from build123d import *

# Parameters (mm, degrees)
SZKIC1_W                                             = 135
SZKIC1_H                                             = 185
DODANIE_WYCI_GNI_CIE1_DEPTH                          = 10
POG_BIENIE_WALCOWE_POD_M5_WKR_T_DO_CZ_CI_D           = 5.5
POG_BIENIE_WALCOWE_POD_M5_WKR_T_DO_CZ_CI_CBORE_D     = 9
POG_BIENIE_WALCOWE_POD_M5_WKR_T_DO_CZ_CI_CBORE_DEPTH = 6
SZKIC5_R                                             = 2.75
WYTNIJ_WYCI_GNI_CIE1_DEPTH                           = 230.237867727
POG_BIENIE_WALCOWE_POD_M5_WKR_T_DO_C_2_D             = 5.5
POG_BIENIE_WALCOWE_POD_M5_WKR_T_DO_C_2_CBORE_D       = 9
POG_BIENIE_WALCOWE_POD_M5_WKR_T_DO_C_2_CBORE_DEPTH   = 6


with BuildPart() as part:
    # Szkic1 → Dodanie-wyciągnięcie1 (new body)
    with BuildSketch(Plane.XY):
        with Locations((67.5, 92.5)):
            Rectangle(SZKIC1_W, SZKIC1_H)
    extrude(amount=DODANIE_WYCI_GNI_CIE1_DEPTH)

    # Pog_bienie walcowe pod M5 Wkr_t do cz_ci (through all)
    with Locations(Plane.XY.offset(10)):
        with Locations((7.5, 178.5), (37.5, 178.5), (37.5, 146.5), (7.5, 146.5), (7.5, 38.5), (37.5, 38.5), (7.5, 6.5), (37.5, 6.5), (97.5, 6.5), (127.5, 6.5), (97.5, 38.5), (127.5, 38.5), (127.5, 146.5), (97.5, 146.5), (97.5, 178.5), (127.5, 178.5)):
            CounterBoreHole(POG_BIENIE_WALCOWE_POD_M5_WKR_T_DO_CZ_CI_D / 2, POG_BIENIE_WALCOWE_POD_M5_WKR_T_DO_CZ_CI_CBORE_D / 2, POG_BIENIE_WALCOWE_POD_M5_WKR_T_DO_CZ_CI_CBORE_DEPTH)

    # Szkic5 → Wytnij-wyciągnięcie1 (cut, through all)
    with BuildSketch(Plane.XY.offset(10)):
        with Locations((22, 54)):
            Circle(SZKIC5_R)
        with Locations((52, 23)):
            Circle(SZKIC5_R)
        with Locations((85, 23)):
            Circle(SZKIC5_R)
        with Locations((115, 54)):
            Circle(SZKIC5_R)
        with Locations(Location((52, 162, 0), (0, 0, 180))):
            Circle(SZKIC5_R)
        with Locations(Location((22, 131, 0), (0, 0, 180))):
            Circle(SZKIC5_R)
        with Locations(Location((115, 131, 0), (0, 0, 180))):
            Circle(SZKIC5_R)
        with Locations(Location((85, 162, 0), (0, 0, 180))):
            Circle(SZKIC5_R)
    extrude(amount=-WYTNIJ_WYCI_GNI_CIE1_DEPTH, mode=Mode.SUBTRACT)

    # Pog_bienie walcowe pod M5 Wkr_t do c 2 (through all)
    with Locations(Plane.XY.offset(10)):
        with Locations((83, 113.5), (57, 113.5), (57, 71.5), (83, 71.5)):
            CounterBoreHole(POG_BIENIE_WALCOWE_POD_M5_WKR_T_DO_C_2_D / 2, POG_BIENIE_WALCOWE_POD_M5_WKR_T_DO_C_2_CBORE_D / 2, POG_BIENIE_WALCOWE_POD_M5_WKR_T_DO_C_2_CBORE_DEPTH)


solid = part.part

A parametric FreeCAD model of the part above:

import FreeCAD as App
import Part
import Sketcher

doc = App.newDocument("Part")
body = doc.addObject("PartDesign::Body", "Body")

# Sketch on XY plane
sketch1 = body.newObject("Sketcher::SketchObject", "Sketch")
sketch1.AttachmentSupport = (doc.getObject("XY_Plane"), [""])
sketch1.MapMode = "FlatFace"
sketch1.addGeometry([
    Part.LineSegment(App.Vector(0, 185, 0), App.Vector(0, 0, 0)),
    Part.LineSegment(App.Vector(0, 0, 0), App.Vector(135, 0, 0)),
    Part.LineSegment(App.Vector(135, 0, 0), App.Vector(135, 185, 0)),
    Part.LineSegment(App.Vector(135, 185, 0), App.Vector(0, 185, 0)),
], False)
sketch1.addConstraint([
    Sketcher.Constraint("Coincident", 0, 2, 1, 1),
    Sketcher.Constraint("Coincident", 1, 2, 2, 1),
    Sketcher.Constraint("Coincident", 2, 2, 3, 1),
    Sketcher.Constraint("Coincident", 3, 2, 0, 1),
    Sketcher.Constraint("Vertical", 0),
    Sketcher.Constraint("Horizontal", 1),
    Sketcher.Constraint("Vertical", 2),
    Sketcher.Constraint("Horizontal", 3),
    Sketcher.Constraint("Coincident", 0, 2, -1, 1),
    Sketcher.Constraint("DistanceX", 1, 1, 1, 2, 135.0),
    Sketcher.Constraint("DistanceY", 0, 2, 0, 1, 185.0),
])
pad1 = body.newObject("PartDesign::Pad", "Pad")
pad1.Profile = sketch1
pad1.Length = 10

# Sketch on XY plane
sketch2 = body.newObject("Sketcher::SketchObject", "Sketch001")
sketch2.AttachmentSupport = (doc.getObject("XY_Plane"), [""])
sketch2.MapMode = "FlatFace"
sketch2.AttachmentOffset = App.Placement(App.Vector(0, 0, 10), App.Rotation())
sketch2.addGeometry([
    Part.Circle(App.Vector(7.5, 178.5, 0), App.Vector(0, 0, 1), 2.75),  # 0
    Part.Circle(App.Vector(37.5, 178.5, 0), App.Vector(0, 0, 1), 2.75),  # 1
    Part.Circle(App.Vector(37.5, 146.5, 0), App.Vector(0, 0, 1), 2.75),  # 2
    Part.Circle(App.Vector(7.5, 146.5, 0), App.Vector(0, 0, 1), 2.75),  # 3
    Part.Circle(App.Vector(7.5, 38.5, 0), App.Vector(0, 0, 1), 2.75),  # 4
    Part.Circle(App.Vector(37.5, 38.5, 0), App.Vector(0, 0, 1), 2.75),  # 5
    Part.Circle(App.Vector(7.5, 6.5, 0), App.Vector(0, 0, 1), 2.75),  # 6
    Part.Circle(App.Vector(37.5, 6.5, 0), App.Vector(0, 0, 1), 2.75),  # 7
    Part.Circle(App.Vector(97.5, 6.5, 0), App.Vector(0, 0, 1), 2.75),  # 8
    Part.Circle(App.Vector(127.5, 6.5, 0), App.Vector(0, 0, 1), 2.75),  # 9
    Part.Circle(App.Vector(97.5, 38.5, 0), App.Vector(0, 0, 1), 2.75),  # 10
    Part.Circle(App.Vector(127.5, 38.5, 0), App.Vector(0, 0, 1), 2.75),  # 11
    Part.Circle(App.Vector(127.5, 146.5, 0), App.Vector(0, 0, 1), 2.75),  # 12
    Part.Circle(App.Vector(97.5, 146.5, 0), App.Vector(0, 0, 1), 2.75),  # 13
    Part.Circle(App.Vector(97.5, 178.5, 0), App.Vector(0, 0, 1), 2.75),  # 14
    Part.Circle(App.Vector(127.5, 178.5, 0), App.Vector(0, 0, 1), 2.75),  # 15
], False)
sketch2.addConstraint([
    Sketcher.Constraint("Equal", 0, 1),
    Sketcher.Constraint("Equal", 1, 2),
    Sketcher.Constraint("Equal", 2, 3),
    Sketcher.Constraint("Equal", 3, 4),
    Sketcher.Constraint("Equal", 4, 5),
    Sketcher.Constraint("Equal", 5, 6),
    Sketcher.Constraint("Equal", 6, 7),
    Sketcher.Constraint("Equal", 7, 8),
    Sketcher.Constraint("Equal", 8, 9),
    Sketcher.Constraint("Equal", 9, 10),
    Sketcher.Constraint("Equal", 10, 11),
    Sketcher.Constraint("Equal", 11, 12),
    Sketcher.Constraint("Equal", 12, 13),
    Sketcher.Constraint("Equal", 13, 14),
    Sketcher.Constraint("Equal", 14, 15),
    Sketcher.Constraint("Horizontal", 0, 3, 1, 3),
    Sketcher.Constraint("Horizontal", 2, 3, 3, 3),
    Sketcher.Constraint("Horizontal", 4, 3, 5, 3),
    Sketcher.Constraint("Horizontal", 6, 3, 7, 3),
    Sketcher.Constraint("Horizontal", 7, 3, 8, 3),
    Sketcher.Constraint("Horizontal", 8, 3, 9, 3),
    Sketcher.Constraint("Horizontal", 5, 3, 10, 3),
    Sketcher.Constraint("Horizontal", 10, 3, 11, 3),
    Sketcher.Constraint("Horizontal", 3, 3, 12, 3),
    Sketcher.Constraint("Horizontal", 12, 3, 13, 3),
    Sketcher.Constraint("Horizontal", 1, 3, 14, 3),
    Sketcher.Constraint("Horizontal", 14, 3, 15, 3),
    Sketcher.Constraint("Vertical", 1, 3, 2, 3),
    Sketcher.Constraint("Vertical", 0, 3, 3, 3),
    Sketcher.Constraint("Vertical", 3, 3, 4, 3),
    Sketcher.Constraint("Vertical", 2, 3, 5, 3),
    Sketcher.Constraint("Vertical", 4, 3, 6, 3),
    Sketcher.Constraint("Vertical", 5, 3, 7, 3),
    Sketcher.Constraint("Vertical", 8, 3, 10, 3),
    Sketcher.Constraint("Vertical", 9, 3, 11, 3),
    Sketcher.Constraint("Vertical", 11, 3, 12, 3),
    Sketcher.Constraint("Vertical", 10, 3, 13, 3),
    Sketcher.Constraint("Vertical", 13, 3, 14, 3),
    Sketcher.Constraint("Vertical", 12, 3, 15, 3),
    Sketcher.Constraint("Diameter", 0, 5.5),
    Sketcher.Constraint("DistanceX", 0, 3, 1, 3, 30.0),
    Sketcher.Constraint("DistanceY", 2, 3, 1, 3, 32.0),
    Sketcher.Constraint("DistanceY", 4, 3, 3, 3, 108.0),
    Sketcher.Constraint("DistanceY", 6, 3, 4, 3, 32.0),
    Sketcher.Constraint("DistanceX", 7, 3, 8, 3, 60.0),
    Sketcher.Constraint("DistanceX", 8, 3, 9, 3, 30.0),
    Sketcher.Constraint("DistanceX", -1, 1, 0, 3, 7.5),
    Sketcher.Constraint("DistanceY", -1, 1, 0, 3, 178.5),
])
doc.recompute()
hole = body.newObject("PartDesign::Hole", "Hole")
hole.Profile = sketch2
hole.ThreadType = "None"
hole.Diameter = 5.5
hole.DepthType = "ThroughAll"
hole.HoleCutType = "Counterbore"
hole.HoleCutDiameter = 9
hole.HoleCutDepth = 6

# Sketch on XY plane
sketch3 = body.newObject("Sketcher::SketchObject", "Sketch002")
sketch3.AttachmentSupport = (doc.getObject("XY_Plane"), [""])
sketch3.MapMode = "FlatFace"
sketch3.AttachmentOffset = App.Placement(App.Vector(0, 0, 10), App.Rotation())
sketch3.addGeometry([
    Part.Circle(App.Vector(22, 54, 0), App.Vector(0, 0, 1), 2.75),  # 0
    Part.Circle(App.Vector(52, 23, 0), App.Vector(0, 0, 1), 2.75),  # 1
    Part.Circle(App.Vector(85, 23, 0), App.Vector(0, 0, 1), 2.75),  # 2
    Part.Circle(App.Vector(115, 54, 0), App.Vector(0, 0, 1), 2.75),  # 3
    Part.Circle(App.Vector(52, 162, 0), App.Vector(0, 0, 1), 2.75),  # 4
    Part.Circle(App.Vector(22, 131, 0), App.Vector(0, 0, 1), 2.75),  # 5
    Part.Circle(App.Vector(115, 131, 0), App.Vector(0, 0, 1), 2.75),  # 6
    Part.Circle(App.Vector(85, 162, 0), App.Vector(0, 0, 1), 2.75),  # 7
], False)
sketch3.addConstraint([
    Sketcher.Constraint("Equal", 0, 1),
    Sketcher.Constraint("Equal", 1, 2),
    Sketcher.Constraint("Equal", 2, 3),
    Sketcher.Constraint("Equal", 3, 4),
    Sketcher.Constraint("Equal", 4, 5),
    Sketcher.Constraint("Equal", 5, 6),
    Sketcher.Constraint("Equal", 6, 7),
    Sketcher.Constraint("Horizontal", 1, 3, 2, 3),
    Sketcher.Constraint("Horizontal", 0, 3, 3, 3),
    Sketcher.Constraint("Horizontal", 5, 3, 6, 3),
    Sketcher.Constraint("Horizontal", 4, 3, 7, 3),
    Sketcher.Constraint("Vertical", 1, 3, 4, 3),
    Sketcher.Constraint("Vertical", 0, 3, 5, 3),
    Sketcher.Constraint("Vertical", 3, 3, 6, 3),
    Sketcher.Constraint("Vertical", 2, 3, 7, 3),
    Sketcher.Constraint("Diameter", 0, 5.5),
    Sketcher.Constraint("DistanceX", -1, 1, 0, 3, 22.0),
    Sketcher.Constraint("DistanceY", -1, 1, 0, 3, 54.0),
    Sketcher.Constraint("DistanceX", -1, 1, 1, 3, 52.0),
    Sketcher.Constraint("DistanceY", -1, 1, 1, 3, 23.0),
    Sketcher.Constraint("DistanceX", -1, 1, 2, 3, 85.0),
    Sketcher.Constraint("DistanceX", -1, 1, 3, 3, 115.0),
    Sketcher.Constraint("DistanceY", -1, 1, 4, 3, 162.0),
    Sketcher.Constraint("DistanceY", -1, 1, 5, 3, 131.0),
])
pocket1 = body.newObject("PartDesign::Pocket", "Pocket")
pocket1.Profile = sketch3
pocket1.Type = "ThroughAll"

# Sketch on XY plane
sketch4 = body.newObject("Sketcher::SketchObject", "Sketch003")
sketch4.AttachmentSupport = (doc.getObject("XY_Plane"), [""])
sketch4.MapMode = "FlatFace"
sketch4.AttachmentOffset = App.Placement(App.Vector(0, 0, 10), App.Rotation())
sketch4.addGeometry([
    Part.Circle(App.Vector(83, 113.5, 0), App.Vector(0, 0, 1), 2.75),
    Part.Circle(App.Vector(57, 113.5, 0), App.Vector(0, 0, 1), 2.75),
    Part.Circle(App.Vector(57, 71.5, 0), App.Vector(0, 0, 1), 2.75),
    Part.Circle(App.Vector(83, 71.5, 0), App.Vector(0, 0, 1), 2.75),
], False)
sketch4.addConstraint([
    Sketcher.Constraint("Equal", 0, 1),
    Sketcher.Constraint("Equal", 1, 2),
    Sketcher.Constraint("Equal", 2, 3),
    Sketcher.Constraint("Horizontal", 0, 3, 1, 3),
    Sketcher.Constraint("Horizontal", 2, 3, 3, 3),
    Sketcher.Constraint("Vertical", 1, 3, 2, 3),
    Sketcher.Constraint("Vertical", 0, 3, 3, 3),
    Sketcher.Constraint("Diameter", 0, 5.5),
    Sketcher.Constraint("DistanceX", -1, 1, 0, 3, 83.0),
    Sketcher.Constraint("DistanceX", -1, 1, 1, 3, 57.0),
    Sketcher.Constraint("DistanceY", 2, 3, 1, 3, 42.0),
    Sketcher.Constraint("DistanceY", -1, 1, 0, 3, 113.5),
])
doc.recompute()
hole2 = body.newObject("PartDesign::Hole", "Hole001")
hole2.Profile = sketch4
hole2.ThreadType = "None"
hole2.Diameter = 5.5
hole2.DepthType = "ThroughAll"
hole2.HoleCutType = "Counterbore"
hole2.HoleCutDiameter = 9
hole2.HoleCutDepth = 6

doc.recompute()
